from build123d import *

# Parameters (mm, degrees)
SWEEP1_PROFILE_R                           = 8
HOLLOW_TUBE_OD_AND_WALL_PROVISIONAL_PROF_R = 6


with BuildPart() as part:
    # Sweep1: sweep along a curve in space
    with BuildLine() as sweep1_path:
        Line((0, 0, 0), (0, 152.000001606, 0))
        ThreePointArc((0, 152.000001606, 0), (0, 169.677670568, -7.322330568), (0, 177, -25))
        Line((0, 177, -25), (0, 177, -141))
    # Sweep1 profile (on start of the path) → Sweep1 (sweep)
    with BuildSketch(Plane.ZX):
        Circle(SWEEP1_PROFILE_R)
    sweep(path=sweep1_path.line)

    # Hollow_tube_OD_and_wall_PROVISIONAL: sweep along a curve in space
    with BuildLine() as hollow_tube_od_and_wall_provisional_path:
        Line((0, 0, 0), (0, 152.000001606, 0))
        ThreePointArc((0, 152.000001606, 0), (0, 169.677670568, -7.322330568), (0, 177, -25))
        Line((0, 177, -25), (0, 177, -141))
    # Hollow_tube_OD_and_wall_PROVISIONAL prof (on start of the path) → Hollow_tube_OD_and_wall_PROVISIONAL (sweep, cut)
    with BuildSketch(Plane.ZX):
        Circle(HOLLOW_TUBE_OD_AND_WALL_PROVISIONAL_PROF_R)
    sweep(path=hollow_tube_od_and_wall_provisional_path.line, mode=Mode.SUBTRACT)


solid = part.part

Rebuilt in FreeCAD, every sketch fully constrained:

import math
import FreeCAD as App
import Part
import Sketcher
from FreeCAD import Vector
Q = App.Units.Quantity

doc = App.newDocument("Part")
body = doc.addObject("PartDesign::Body", "Body")

sketch1 = body.newObject("Sketcher::SketchObject", "Sketch")
sketch1.AttachmentSupport = (doc.getObject("XZ_Plane"), [""])
sketch1.MapMode = "FlatFace"
sketch1.addGeometry(Part.Circle(Vector(0, 0, 0), Vector(0, 0, 1), 8), False)
sketch1.addConstraint(Sketcher.Constraint("Coincident", 0, 3, -1, 1))
sketch1.addConstraint(Sketcher.Constraint("Diameter", 0, Q("16 mm")))

sketch2 = body.newObject("Sketcher::SketchObject", "Sketch001")
sketch2.AttachmentSupport = (doc.getObject("YZ_Plane"), [""])
sketch2.MapMode = "FlatFace"
sketch2.addGeometry(Part.LineSegment(Vector(0, 0, 0), Vector(152, 0, 0)), False)
sketch2.addGeometry(Part.ArcOfCircle(Part.Circle(Vector(152, -25, 0), Vector(0, 0, 1), 25), math.radians(0), math.radians(90)), False)
sketch2.addGeometry(Part.LineSegment(Vector(177, -25, 0), Vector(177, -141, 0)), False)
sketch2.addConstraint(Sketcher.Constraint("Tangent", 0, 2, 1, 2))
sketch2.addConstraint(Sketcher.Constraint("Tangent", 1, 1, 2, 1))
sketch2.addConstraint(Sketcher.Constraint("Horizontal", 0))
sketch2.addConstraint(Sketcher.Constraint("Vertical", 2))
sketch2.addConstraint(Sketcher.Constraint("Coincident", 0, 1, -1, 1))
sketch2.addConstraint(Sketcher.Constraint("Radius", 1, Q("24.999998 mm")))
sketch2.addConstraint(Sketcher.Constraint("DistanceX", 0, 1, 0, 2, Q("152.000002 mm")))
sketch2.addConstraint(Sketcher.Constraint("DistanceY", 2, 2, 2, 1, Q("116 mm")))
doc.recompute()

additivepipe = body.newObject("PartDesign::AdditivePipe", "AdditivePipe")
additivepipe.Profile = sketch1
additivepipe.Spine = (sketch2, ["Edge1", "Edge2", "Edge3"])

sketch3 = body.newObject("Sketcher::SketchObject", "Sketch002")
sketch3.AttachmentSupport = (doc.getObject("XZ_Plane"), [""])
sketch3.MapMode = "FlatFace"
sketch3.addGeometry(Part.Circle(Vector(0, 0, 0), Vector(0, 0, 1), 6), False)
sketch3.addConstraint(Sketcher.Constraint("Coincident", 0, 3, -1, 1))
sketch3.addConstraint(Sketcher.Constraint("Diameter", 0, Q("12 mm")))

sketch4 = body.newObject("Sketcher::SketchObject", "Sketch003")
sketch4.AttachmentSupport = (doc.getObject("YZ_Plane"), [""])
sketch4.MapMode = "FlatFace"
sketch4.addGeometry(Part.LineSegment(Vector(0, 0, 0), Vector(152, 0, 0)), False)
sketch4.addGeometry(Part.ArcOfCircle(Part.Circle(Vector(152, -25, 0), Vector(0, 0, 1), 25), math.radians(0), math.radians(90)), False)
sketch4.addGeometry(Part.LineSegment(Vector(177, -25, 0), Vector(177, -141, 0)), False)
sketch4.addConstraint(Sketcher.Constraint("Tangent", 0, 2, 1, 2))
sketch4.addConstraint(Sketcher.Constraint("Tangent", 1, 1, 2, 1))
sketch4.addConstraint(Sketcher.Constraint("Horizontal", 0))
sketch4.addConstraint(Sketcher.Constraint("Vertical", 2))
sketch4.addConstraint(Sketcher.Constraint("Coincident", 0, 1, -1, 1))
sketch4.addConstraint(Sketcher.Constraint("Radius", 1, Q("24.999998 mm")))
sketch4.addConstraint(Sketcher.Constraint("DistanceX", 0, 1, 0, 2, Q("152.000002 mm")))
sketch4.addConstraint(Sketcher.Constraint("DistanceY", 2, 2, 2, 1, Q("116 mm")))
doc.recompute()

subtractivepipe = body.newObject("PartDesign::SubtractivePipe", "SubtractivePipe")
subtractivepipe.Profile = sketch3
subtractivepipe.Spine = (sketch4, ["Edge1", "Edge2", "Edge3"])

doc.recompute()
